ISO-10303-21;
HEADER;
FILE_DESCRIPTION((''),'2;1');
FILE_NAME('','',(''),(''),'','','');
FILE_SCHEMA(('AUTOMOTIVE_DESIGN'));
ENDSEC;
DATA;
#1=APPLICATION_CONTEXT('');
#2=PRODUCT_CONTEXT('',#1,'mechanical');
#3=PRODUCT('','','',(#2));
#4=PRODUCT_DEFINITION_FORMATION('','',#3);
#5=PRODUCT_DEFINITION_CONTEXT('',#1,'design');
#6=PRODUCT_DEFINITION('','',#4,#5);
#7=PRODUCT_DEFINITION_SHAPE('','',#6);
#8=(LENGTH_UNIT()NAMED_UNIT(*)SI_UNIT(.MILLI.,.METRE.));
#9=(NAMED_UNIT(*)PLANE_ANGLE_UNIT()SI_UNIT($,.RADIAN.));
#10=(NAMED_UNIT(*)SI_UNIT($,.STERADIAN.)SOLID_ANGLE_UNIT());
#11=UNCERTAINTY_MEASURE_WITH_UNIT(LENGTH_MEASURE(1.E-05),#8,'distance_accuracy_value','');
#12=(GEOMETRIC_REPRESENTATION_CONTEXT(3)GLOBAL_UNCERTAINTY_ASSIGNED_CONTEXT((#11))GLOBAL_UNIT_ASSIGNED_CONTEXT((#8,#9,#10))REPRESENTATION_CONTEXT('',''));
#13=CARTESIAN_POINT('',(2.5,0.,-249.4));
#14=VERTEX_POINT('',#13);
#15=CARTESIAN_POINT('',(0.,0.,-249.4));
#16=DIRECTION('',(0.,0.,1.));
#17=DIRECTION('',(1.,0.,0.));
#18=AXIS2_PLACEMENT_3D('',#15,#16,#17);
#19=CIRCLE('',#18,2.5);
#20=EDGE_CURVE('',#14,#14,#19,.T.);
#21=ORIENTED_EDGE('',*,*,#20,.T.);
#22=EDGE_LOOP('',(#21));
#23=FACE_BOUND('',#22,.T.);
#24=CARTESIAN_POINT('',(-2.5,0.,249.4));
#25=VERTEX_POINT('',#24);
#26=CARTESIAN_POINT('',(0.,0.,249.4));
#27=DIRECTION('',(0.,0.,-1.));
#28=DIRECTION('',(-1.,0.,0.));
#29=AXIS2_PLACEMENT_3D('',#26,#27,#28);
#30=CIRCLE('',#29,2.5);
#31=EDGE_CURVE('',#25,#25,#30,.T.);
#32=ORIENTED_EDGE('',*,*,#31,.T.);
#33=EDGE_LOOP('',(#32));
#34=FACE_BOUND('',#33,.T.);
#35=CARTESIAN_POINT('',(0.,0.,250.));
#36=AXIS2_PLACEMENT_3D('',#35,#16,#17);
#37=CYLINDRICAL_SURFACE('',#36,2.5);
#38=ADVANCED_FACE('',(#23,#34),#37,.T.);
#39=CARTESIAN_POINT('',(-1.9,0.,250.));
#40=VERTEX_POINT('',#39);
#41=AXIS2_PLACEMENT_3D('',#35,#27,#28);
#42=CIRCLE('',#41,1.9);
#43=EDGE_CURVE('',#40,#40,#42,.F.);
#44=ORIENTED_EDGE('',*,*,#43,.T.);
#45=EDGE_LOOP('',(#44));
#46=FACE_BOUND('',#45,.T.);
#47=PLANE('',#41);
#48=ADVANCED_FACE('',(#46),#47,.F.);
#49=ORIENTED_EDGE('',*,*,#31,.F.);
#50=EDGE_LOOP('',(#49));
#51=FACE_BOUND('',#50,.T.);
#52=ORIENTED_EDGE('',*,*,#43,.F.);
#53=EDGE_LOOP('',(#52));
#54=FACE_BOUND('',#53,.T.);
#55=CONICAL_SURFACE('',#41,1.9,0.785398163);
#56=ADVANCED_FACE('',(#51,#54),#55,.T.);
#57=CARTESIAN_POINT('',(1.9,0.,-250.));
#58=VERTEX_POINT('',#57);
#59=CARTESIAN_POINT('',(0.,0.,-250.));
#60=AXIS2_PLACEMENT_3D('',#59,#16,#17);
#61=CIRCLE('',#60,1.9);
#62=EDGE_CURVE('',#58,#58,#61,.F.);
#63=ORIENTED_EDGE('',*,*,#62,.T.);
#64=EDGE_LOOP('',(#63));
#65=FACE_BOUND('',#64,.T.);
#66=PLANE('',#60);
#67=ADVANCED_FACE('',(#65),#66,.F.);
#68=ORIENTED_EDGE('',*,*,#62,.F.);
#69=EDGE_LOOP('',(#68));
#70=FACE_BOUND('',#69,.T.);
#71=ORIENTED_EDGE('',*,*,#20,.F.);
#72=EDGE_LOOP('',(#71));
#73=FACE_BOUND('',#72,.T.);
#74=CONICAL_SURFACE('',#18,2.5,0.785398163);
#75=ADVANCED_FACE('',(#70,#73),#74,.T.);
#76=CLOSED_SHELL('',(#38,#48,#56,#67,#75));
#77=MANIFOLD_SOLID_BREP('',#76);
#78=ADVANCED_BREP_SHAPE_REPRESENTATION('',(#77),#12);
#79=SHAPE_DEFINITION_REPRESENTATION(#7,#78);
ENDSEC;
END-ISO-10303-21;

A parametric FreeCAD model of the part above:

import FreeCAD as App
import Part
import Sketcher

V = App.Vector
Q = App.Units.Quantity


def edges_at(feature, points):
    """Names of the edges that pass closest to the given points."""
    edges = feature.Shape.Edges
    near = lambda p: min(range(len(edges)), key=lambda i: edges[i].distToShape(Part.Vertex(*p))[0])
    return sorted({f"Edge{near(p) + 1}" for p in points})


def add_polygon(sketch, points):
    """Adds a closed chain of lines whose ends are joined by coincident constraints."""
    first, n = sketch.GeometryCount, len(points)
    for a, b in zip(points, points[1:] + points[:1]):
        sketch.addGeometry(Part.LineSegment(App.Vector(*a, 0), App.Vector(*b, 0)), False)
    for i in range(n):
        sketch.addConstraint(Sketcher.Constraint("Coincident", first + i, 2, first + (i + 1) % n, 1))

doc = App.newDocument("Part")
body = doc.addObject("PartDesign::Body", "Body")

sketch1 = body.newObject("Sketcher::SketchObject", "Sketch")
sketch1.AttachmentSupport = (doc.getObject("YZ_Plane"), [""])
sketch1.MapMode = "FlatFace"
add_polygon(sketch1, [(2.5, 250), (0, 250), (0, -250), (2.5, -250)])
sketch1.addConstraint(Sketcher.Constraint("Horizontal", 0))
sketch1.addConstraint(Sketcher.Constraint("Vertical", 1))
sketch1.addConstraint(Sketcher.Constraint("Horizontal", 2))
sketch1.addConstraint(Sketcher.Constraint("Vertical", 3))
sketch1.addConstraint(Sketcher.Constraint("Symmetric", 0, 2, 1, 2, -1, 1))
sketch1.addConstraint(Sketcher.Constraint("DistanceY", 1, 2, 1, 1, Q("500 mm")))
sketch1.addConstraint(Sketcher.Constraint("DistanceX", 0, 2, 0, 1, Q("2.5 mm")))
revolution = body.newObject("PartDesign::Revolution", "Revolution")
revolution.Profile = sketch1
revolution.ReferenceAxis = (sketch1, ["V_Axis"])
revolution.Angle = 360
doc.recompute()

chamfer = body.newObject("PartDesign::Chamfer", "Chamfer")
chamfer.Base = (revolution, edges_at(revolution, [(0, -2.5, -250), (0, -2.5, 250)]))
chamfer.Size = 0.6

doc.recompute()
